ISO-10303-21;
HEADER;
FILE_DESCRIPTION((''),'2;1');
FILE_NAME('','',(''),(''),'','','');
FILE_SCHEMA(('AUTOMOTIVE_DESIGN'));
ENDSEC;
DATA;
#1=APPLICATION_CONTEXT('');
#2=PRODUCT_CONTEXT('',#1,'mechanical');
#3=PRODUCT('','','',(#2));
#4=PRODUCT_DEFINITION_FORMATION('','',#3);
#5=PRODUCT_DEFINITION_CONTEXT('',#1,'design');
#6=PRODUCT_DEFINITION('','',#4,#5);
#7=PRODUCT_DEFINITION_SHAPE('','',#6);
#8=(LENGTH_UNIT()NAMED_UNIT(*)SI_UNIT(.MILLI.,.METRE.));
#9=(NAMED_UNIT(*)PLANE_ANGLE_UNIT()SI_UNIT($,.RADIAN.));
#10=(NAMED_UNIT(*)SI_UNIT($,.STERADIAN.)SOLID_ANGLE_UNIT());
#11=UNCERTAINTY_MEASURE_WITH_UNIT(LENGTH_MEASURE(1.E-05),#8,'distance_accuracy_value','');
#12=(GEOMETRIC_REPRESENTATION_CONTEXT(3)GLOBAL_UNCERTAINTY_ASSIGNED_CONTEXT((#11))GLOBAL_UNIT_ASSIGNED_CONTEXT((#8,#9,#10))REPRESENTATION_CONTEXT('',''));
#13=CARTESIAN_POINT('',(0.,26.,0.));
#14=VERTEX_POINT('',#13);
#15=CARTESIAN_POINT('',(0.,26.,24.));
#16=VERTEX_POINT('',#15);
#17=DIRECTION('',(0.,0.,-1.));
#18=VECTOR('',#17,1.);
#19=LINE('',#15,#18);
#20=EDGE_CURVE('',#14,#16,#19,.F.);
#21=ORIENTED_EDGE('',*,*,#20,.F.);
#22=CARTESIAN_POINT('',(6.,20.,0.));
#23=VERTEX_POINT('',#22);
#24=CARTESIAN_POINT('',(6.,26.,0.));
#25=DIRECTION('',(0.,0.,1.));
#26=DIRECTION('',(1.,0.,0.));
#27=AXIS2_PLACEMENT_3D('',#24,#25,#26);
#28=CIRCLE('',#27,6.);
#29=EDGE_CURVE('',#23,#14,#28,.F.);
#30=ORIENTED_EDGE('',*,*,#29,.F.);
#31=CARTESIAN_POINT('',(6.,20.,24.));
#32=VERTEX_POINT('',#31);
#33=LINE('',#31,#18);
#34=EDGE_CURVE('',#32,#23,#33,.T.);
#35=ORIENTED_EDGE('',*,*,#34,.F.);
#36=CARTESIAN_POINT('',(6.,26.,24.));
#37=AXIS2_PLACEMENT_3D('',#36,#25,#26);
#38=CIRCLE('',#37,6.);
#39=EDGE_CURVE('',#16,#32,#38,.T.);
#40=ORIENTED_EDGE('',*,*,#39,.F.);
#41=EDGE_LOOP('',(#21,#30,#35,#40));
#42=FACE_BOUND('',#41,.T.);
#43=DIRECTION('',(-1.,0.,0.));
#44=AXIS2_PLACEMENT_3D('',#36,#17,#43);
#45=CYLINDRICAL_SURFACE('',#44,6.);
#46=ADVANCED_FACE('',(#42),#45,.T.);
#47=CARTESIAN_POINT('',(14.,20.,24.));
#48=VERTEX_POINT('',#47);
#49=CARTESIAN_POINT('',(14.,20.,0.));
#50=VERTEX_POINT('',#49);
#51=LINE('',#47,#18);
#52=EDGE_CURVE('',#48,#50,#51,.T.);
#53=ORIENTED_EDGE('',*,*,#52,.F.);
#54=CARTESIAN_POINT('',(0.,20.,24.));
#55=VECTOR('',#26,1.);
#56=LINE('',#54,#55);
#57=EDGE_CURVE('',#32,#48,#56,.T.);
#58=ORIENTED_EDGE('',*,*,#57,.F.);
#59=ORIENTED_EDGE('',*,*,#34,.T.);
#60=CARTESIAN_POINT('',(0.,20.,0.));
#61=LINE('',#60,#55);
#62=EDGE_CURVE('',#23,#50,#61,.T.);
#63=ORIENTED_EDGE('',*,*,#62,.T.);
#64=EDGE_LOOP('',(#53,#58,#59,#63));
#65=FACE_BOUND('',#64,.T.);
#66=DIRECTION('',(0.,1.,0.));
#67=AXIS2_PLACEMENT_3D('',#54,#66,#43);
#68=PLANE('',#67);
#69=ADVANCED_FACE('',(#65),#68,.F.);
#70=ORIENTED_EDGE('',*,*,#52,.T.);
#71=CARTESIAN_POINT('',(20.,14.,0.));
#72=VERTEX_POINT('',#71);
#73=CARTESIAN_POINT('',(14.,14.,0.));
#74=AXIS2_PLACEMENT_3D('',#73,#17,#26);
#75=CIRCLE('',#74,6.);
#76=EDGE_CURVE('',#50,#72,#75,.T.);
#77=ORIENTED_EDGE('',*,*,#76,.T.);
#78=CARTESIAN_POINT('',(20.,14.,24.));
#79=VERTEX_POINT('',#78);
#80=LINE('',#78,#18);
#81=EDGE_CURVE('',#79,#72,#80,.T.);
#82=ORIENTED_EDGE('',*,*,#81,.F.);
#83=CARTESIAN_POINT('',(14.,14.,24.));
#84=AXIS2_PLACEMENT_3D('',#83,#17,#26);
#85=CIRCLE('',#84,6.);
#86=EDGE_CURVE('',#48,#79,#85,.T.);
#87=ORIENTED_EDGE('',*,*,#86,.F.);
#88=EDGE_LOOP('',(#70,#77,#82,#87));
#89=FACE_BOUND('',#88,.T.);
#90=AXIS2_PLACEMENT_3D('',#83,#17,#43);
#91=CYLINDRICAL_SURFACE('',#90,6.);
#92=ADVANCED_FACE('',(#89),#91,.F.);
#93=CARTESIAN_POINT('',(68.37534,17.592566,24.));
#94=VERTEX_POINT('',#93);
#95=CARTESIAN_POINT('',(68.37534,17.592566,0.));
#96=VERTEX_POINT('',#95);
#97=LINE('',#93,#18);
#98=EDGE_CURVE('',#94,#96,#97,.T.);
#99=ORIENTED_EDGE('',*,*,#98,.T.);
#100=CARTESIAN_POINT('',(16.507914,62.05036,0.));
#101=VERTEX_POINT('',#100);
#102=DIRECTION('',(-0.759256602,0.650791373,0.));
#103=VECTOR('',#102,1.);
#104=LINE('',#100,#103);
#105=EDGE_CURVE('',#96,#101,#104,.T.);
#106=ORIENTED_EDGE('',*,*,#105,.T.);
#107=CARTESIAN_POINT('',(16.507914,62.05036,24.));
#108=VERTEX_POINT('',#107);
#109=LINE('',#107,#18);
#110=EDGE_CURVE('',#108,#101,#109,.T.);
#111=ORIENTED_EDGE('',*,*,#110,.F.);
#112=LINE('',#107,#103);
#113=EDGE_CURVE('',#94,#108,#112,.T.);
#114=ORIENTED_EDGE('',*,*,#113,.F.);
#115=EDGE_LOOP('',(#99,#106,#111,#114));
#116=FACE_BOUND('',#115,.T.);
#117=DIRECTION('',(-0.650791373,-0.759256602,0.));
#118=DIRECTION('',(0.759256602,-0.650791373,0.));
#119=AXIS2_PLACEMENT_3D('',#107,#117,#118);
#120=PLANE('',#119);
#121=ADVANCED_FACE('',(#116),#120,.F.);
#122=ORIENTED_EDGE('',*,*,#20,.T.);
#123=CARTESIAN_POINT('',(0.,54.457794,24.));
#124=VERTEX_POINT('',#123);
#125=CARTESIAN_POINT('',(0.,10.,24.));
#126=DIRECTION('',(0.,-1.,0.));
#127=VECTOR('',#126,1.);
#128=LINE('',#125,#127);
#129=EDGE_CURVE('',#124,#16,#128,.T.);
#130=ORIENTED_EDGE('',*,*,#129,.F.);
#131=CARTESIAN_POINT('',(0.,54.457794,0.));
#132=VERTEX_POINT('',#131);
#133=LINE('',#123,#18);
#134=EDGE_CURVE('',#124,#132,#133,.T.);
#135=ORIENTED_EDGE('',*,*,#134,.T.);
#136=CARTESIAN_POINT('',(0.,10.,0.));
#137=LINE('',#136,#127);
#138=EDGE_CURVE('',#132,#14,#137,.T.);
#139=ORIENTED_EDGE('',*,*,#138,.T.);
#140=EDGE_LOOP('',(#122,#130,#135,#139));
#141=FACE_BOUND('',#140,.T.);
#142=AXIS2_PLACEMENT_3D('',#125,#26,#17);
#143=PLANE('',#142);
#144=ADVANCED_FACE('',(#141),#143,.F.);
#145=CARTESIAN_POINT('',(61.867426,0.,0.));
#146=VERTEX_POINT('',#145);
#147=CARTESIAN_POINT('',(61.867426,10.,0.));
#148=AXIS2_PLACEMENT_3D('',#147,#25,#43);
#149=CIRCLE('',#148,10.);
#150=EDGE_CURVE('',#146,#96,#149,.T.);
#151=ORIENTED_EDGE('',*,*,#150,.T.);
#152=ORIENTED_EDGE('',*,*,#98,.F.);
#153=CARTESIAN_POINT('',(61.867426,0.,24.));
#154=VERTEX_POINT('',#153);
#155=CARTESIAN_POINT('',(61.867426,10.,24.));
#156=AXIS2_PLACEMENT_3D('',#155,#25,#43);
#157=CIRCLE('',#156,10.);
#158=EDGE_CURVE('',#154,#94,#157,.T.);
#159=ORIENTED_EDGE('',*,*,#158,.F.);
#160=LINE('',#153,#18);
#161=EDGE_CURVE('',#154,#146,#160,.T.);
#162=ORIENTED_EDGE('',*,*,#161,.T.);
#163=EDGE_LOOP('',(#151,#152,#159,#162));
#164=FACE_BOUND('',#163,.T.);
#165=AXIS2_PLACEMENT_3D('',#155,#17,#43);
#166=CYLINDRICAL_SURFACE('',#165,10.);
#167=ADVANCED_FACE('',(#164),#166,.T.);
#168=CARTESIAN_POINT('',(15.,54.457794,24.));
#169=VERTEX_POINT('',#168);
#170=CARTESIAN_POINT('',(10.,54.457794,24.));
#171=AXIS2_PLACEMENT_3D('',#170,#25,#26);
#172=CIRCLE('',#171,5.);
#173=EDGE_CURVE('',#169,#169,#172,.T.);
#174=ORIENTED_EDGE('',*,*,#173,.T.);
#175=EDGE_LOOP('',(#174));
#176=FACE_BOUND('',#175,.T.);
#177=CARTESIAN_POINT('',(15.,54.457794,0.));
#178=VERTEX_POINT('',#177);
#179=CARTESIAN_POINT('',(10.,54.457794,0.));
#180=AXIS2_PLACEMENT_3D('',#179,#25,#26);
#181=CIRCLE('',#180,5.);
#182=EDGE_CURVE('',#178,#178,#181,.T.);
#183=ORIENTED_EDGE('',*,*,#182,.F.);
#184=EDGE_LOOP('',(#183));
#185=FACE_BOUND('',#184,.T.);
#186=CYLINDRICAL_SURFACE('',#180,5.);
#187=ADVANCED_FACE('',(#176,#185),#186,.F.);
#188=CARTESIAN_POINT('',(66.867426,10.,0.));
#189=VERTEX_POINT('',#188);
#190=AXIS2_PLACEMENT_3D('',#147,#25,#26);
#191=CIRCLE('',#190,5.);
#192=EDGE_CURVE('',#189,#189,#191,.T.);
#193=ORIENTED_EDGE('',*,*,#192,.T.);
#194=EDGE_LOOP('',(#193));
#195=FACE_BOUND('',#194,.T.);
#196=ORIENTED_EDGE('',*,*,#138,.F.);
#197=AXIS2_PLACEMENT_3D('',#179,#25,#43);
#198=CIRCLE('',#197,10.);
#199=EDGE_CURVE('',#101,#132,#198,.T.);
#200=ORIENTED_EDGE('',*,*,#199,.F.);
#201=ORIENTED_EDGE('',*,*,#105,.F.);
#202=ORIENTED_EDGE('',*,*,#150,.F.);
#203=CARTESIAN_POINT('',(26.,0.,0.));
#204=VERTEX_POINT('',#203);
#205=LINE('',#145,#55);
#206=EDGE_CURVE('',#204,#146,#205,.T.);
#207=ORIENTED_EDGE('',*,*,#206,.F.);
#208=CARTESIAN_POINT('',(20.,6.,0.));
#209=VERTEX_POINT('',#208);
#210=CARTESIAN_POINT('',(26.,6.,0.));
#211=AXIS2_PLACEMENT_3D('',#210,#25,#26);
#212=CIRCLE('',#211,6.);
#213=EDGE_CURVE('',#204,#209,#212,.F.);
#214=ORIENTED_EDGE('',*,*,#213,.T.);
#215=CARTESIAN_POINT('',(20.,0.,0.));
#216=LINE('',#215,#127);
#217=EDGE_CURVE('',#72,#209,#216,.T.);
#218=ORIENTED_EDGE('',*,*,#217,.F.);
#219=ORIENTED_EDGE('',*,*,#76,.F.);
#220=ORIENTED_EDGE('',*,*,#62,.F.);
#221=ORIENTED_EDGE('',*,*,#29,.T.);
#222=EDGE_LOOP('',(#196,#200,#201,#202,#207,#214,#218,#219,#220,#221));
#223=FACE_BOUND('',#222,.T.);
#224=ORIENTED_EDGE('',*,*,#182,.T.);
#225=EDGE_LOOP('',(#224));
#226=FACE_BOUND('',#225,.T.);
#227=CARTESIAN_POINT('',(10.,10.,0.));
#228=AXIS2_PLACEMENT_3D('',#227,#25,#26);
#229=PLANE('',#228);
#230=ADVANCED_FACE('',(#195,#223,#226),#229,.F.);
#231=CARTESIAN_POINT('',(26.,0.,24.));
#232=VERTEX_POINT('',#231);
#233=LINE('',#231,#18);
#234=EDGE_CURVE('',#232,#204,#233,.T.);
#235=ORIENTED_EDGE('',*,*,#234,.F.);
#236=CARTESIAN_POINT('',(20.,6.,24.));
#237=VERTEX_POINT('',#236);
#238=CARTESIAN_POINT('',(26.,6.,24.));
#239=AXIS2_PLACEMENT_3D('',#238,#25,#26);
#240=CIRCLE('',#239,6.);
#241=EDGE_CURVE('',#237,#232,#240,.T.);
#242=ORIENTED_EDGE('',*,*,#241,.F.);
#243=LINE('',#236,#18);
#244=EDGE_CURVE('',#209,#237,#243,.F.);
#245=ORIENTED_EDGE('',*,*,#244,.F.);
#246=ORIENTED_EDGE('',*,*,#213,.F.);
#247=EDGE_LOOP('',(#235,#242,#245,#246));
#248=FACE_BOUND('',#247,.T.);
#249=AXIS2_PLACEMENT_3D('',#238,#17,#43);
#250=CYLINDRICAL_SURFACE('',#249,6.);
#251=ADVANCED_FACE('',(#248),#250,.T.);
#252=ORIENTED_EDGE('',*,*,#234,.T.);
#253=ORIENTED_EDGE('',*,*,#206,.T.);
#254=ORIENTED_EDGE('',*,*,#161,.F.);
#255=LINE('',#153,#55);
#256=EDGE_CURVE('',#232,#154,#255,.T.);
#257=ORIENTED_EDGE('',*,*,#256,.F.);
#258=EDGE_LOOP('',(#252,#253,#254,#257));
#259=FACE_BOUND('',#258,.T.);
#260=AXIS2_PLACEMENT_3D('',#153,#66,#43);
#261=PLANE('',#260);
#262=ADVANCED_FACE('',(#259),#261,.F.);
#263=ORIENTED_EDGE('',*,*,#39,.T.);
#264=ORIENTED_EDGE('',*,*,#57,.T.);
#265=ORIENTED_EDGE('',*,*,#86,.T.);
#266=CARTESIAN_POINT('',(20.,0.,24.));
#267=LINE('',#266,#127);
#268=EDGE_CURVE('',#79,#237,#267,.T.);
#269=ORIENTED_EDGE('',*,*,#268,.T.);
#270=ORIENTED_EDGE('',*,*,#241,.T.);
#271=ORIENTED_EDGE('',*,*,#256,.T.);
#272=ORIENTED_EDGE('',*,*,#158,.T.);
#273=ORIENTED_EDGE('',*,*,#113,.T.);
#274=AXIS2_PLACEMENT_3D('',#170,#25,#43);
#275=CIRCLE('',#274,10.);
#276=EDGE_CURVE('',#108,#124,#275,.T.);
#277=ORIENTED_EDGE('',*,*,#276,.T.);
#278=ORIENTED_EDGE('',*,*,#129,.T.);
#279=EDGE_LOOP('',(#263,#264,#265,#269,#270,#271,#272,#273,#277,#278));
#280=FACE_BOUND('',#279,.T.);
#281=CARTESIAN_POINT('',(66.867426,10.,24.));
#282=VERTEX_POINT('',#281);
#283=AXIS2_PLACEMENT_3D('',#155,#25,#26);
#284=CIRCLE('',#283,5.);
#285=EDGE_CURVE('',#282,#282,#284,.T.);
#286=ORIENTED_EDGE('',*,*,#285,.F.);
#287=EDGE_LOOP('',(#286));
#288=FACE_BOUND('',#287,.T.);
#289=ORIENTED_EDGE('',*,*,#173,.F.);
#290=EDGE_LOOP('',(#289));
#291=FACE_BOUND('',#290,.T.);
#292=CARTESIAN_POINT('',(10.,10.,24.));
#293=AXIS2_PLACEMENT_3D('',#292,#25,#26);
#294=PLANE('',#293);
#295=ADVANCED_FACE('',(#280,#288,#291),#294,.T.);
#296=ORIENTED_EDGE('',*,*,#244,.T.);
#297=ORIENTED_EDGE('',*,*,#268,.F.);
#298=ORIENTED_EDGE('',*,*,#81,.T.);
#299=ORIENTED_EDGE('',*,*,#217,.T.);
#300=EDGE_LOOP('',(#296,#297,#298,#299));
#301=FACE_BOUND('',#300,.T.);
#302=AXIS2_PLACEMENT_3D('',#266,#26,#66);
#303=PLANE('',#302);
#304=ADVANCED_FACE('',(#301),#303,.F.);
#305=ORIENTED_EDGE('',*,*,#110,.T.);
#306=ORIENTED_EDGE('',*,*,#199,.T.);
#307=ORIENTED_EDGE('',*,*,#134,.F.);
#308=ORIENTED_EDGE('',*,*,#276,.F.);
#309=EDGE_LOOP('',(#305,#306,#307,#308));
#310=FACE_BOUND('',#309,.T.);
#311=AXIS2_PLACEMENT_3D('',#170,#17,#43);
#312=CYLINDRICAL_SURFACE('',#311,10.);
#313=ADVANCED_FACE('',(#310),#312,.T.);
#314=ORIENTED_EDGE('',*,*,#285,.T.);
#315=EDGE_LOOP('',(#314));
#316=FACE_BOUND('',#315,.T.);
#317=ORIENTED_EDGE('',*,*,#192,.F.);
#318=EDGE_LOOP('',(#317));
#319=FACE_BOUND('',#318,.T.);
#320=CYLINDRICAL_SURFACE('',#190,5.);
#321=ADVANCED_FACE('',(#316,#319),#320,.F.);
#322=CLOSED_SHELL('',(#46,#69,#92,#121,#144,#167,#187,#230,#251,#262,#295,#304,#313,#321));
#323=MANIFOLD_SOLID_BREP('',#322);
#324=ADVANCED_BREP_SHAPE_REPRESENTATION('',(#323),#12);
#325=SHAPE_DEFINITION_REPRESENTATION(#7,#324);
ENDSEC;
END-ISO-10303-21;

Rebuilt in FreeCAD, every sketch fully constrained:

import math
import FreeCAD as App
import Part
import Sketcher
from FreeCAD import Vector
Q = App.Units.Quantity


def edges_at(feature, points):
    """Names of the edges that pass closest to the given points."""
    edges = feature.Shape.Edges
    near = lambda p: min(range(len(edges)), key=lambda i: edges[i].distToShape(Part.Vertex(*p))[0])
    return sorted({f"Edge{near(p) + 1}" for p in points})

doc = App.newDocument("Part")
body = doc.addObject("PartDesign::Body", "Body")

# Sketch on XY plane
sketch1 = body.newObject("Sketcher::SketchObject", "Sketch")
sketch1.AttachmentSupport = (doc.getObject("XY_Plane"), [""])
sketch1.MapMode = "FlatFace"
sketch1.addGeometry([
    Part.LineSegment(Vector(0, 54, 0), Vector(0, 10, 0)),  # 0
    Part.ArcOfCircle(Part.Circle(Vector(10, 10, 0), Vector(0, 0, 1), 10), math.radians(180), math.radians(270)),  # 1
    Part.LineSegment(Vector(10, 0, 0), Vector(62, 0, 0)),  # 2
    Part.ArcOfCircle(Part.Circle(Vector(62, 10, 0), Vector(0, 0, 1), 10), math.radians(-90), math.radians(49)),  # 3
    Part.LineSegment(Vector(68, 18, 0), Vector(17, 62, 0)),  # 4
    Part.ArcOfCircle(Part.Circle(Vector(10, 54, 0), Vector(0, 0, 1), 10), math.radians(49), math.radians(180)),  # 5
], False)
sketch1.addConstraint([
    Sketcher.Constraint("Tangent", 0, 2, 1, 1),
    Sketcher.Constraint("Tangent", 1, 2, 2, 1),
    Sketcher.Constraint("Tangent", 2, 2, 3, 1),
    Sketcher.Constraint("Tangent", 3, 2, 4, 1),
    Sketcher.Constraint("Tangent", 4, 2, 5, 1),
    Sketcher.Constraint("Tangent", 5, 2, 0, 1),
    Sketcher.Constraint("Vertical", 0),
    Sketcher.Constraint("Horizontal", 2),
    Sketcher.Constraint("Equal", 1, 3),
    Sketcher.Constraint("Equal", 3, 5),
    Sketcher.Constraint("PointOnObject", 0, 2, -2),
    Sketcher.Constraint("PointOnObject", 1, 2, -1),
    Sketcher.Constraint("Radius", 1, Q("10 mm")),
    Sketcher.Constraint("DistanceX", 2, 1, 2, 2, Q("51.867426 mm")),
    Sketcher.Constraint("DistanceY", 0, 2, 0, 1, Q("44.457794 mm")),
])
pad1 = body.newObject("PartDesign::Pad", "Pad")
pad1.Profile = sketch1
pad1.Length = 24

# Sketch on XY plane
sketch2 = body.newObject("Sketcher::SketchObject", "Sketch001")
sketch2.AttachmentSupport = (doc.getObject("XY_Plane"), [""])
sketch2.MapMode = "FlatFace"
sketch2.AttachmentOffset = App.Placement(Vector(0, 0, 24), App.Rotation())
sketch2.addGeometry([
    Part.Circle(Vector(10, 54, 0), Vector(0, 0, 1), 5),
    Part.Circle(Vector(62, 10, 0), Vector(0, 0, 1), 5),
], False)
sketch2.addConstraint([
    Sketcher.Constraint("Equal", 0, 1),
    Sketcher.Constraint("Diameter", 0, Q("10 mm")),
    Sketcher.Constraint("DistanceX", -1, 1, 0, 3, Q("10 mm")),
    Sketcher.Constraint("DistanceY", -1, 1, 1, 3, Q("10 mm")),
    Sketcher.Constraint("DistanceY", -1, 1, 0, 3, Q("54.457794 mm")),
    Sketcher.Constraint("DistanceX", -1, 1, 1, 3, Q("61.867426 mm")),
])
pocket1 = body.newObject("PartDesign::Pocket", "Pocket")
pocket1.Profile = sketch2
pocket1.Type = "ThroughAll"

# Sketch on XY plane
sketch3 = body.newObject("Sketcher::SketchObject", "Sketch002")
sketch3.AttachmentSupport = (doc.getObject("XY_Plane"), [""])
sketch3.MapMode = "FlatFace"
sketch3.addGeometry([
    Part.LineSegment(Vector(20, 0, 0), Vector(0, 0, 0)),  # 0
    Part.LineSegment(Vector(0, 0, 0), Vector(0, 20, 0)),  # 1
    Part.LineSegment(Vector(0, 20, 0), Vector(14, 20, 0)),  # 2
    Part.ArcOfCircle(Part.Circle(Vector(14, 14, 0), Vector(0, 0, 1), 6), math.radians(0), math.radians(90)),  # 3
    Part.LineSegment(Vector(20, 14, 0), Vector(20, 0, 0)),  # 4
], False)
sketch3.addConstraint([
    Sketcher.Constraint("Coincident", 0, 2, 1, 1),
    Sketcher.Constraint("Coincident", 1, 2, 2, 1),
    Sketcher.Constraint("Tangent", 2, 2, 3, 2),
    Sketcher.Constraint("Tangent", 3, 1, 4, 1),
    Sketcher.Constraint("Coincident", 4, 2, 0, 1),
    Sketcher.Constraint("Horizontal", 0),
    Sketcher.Constraint("Vertical", 1),
    Sketcher.Constraint("Horizontal", 2),
    Sketcher.Constraint("Vertical", 4),
    Sketcher.Constraint("Coincident", 0, 2, -1, 1),
    Sketcher.Constraint("Equal", 0, 1),
    Sketcher.Constraint("Radius", 3, Q("6 mm")),
    Sketcher.Constraint("DistanceX", 0, 2, 0, 1, Q("20 mm")),
])
pocket2 = body.newObject("PartDesign::Pocket", "Pocket001")
pocket2.Profile = sketch3
pocket2.Type = "ThroughAll"
pocket2.Reversed = True
doc.recompute()

fillet = body.newObject("PartDesign::Fillet", "Fillet")
fillet.Base = (pocket2, edges_at(pocket2, [(0, 20, 12), (20, 0, 12)]))
fillet.Radius = 6

doc.recompute()
